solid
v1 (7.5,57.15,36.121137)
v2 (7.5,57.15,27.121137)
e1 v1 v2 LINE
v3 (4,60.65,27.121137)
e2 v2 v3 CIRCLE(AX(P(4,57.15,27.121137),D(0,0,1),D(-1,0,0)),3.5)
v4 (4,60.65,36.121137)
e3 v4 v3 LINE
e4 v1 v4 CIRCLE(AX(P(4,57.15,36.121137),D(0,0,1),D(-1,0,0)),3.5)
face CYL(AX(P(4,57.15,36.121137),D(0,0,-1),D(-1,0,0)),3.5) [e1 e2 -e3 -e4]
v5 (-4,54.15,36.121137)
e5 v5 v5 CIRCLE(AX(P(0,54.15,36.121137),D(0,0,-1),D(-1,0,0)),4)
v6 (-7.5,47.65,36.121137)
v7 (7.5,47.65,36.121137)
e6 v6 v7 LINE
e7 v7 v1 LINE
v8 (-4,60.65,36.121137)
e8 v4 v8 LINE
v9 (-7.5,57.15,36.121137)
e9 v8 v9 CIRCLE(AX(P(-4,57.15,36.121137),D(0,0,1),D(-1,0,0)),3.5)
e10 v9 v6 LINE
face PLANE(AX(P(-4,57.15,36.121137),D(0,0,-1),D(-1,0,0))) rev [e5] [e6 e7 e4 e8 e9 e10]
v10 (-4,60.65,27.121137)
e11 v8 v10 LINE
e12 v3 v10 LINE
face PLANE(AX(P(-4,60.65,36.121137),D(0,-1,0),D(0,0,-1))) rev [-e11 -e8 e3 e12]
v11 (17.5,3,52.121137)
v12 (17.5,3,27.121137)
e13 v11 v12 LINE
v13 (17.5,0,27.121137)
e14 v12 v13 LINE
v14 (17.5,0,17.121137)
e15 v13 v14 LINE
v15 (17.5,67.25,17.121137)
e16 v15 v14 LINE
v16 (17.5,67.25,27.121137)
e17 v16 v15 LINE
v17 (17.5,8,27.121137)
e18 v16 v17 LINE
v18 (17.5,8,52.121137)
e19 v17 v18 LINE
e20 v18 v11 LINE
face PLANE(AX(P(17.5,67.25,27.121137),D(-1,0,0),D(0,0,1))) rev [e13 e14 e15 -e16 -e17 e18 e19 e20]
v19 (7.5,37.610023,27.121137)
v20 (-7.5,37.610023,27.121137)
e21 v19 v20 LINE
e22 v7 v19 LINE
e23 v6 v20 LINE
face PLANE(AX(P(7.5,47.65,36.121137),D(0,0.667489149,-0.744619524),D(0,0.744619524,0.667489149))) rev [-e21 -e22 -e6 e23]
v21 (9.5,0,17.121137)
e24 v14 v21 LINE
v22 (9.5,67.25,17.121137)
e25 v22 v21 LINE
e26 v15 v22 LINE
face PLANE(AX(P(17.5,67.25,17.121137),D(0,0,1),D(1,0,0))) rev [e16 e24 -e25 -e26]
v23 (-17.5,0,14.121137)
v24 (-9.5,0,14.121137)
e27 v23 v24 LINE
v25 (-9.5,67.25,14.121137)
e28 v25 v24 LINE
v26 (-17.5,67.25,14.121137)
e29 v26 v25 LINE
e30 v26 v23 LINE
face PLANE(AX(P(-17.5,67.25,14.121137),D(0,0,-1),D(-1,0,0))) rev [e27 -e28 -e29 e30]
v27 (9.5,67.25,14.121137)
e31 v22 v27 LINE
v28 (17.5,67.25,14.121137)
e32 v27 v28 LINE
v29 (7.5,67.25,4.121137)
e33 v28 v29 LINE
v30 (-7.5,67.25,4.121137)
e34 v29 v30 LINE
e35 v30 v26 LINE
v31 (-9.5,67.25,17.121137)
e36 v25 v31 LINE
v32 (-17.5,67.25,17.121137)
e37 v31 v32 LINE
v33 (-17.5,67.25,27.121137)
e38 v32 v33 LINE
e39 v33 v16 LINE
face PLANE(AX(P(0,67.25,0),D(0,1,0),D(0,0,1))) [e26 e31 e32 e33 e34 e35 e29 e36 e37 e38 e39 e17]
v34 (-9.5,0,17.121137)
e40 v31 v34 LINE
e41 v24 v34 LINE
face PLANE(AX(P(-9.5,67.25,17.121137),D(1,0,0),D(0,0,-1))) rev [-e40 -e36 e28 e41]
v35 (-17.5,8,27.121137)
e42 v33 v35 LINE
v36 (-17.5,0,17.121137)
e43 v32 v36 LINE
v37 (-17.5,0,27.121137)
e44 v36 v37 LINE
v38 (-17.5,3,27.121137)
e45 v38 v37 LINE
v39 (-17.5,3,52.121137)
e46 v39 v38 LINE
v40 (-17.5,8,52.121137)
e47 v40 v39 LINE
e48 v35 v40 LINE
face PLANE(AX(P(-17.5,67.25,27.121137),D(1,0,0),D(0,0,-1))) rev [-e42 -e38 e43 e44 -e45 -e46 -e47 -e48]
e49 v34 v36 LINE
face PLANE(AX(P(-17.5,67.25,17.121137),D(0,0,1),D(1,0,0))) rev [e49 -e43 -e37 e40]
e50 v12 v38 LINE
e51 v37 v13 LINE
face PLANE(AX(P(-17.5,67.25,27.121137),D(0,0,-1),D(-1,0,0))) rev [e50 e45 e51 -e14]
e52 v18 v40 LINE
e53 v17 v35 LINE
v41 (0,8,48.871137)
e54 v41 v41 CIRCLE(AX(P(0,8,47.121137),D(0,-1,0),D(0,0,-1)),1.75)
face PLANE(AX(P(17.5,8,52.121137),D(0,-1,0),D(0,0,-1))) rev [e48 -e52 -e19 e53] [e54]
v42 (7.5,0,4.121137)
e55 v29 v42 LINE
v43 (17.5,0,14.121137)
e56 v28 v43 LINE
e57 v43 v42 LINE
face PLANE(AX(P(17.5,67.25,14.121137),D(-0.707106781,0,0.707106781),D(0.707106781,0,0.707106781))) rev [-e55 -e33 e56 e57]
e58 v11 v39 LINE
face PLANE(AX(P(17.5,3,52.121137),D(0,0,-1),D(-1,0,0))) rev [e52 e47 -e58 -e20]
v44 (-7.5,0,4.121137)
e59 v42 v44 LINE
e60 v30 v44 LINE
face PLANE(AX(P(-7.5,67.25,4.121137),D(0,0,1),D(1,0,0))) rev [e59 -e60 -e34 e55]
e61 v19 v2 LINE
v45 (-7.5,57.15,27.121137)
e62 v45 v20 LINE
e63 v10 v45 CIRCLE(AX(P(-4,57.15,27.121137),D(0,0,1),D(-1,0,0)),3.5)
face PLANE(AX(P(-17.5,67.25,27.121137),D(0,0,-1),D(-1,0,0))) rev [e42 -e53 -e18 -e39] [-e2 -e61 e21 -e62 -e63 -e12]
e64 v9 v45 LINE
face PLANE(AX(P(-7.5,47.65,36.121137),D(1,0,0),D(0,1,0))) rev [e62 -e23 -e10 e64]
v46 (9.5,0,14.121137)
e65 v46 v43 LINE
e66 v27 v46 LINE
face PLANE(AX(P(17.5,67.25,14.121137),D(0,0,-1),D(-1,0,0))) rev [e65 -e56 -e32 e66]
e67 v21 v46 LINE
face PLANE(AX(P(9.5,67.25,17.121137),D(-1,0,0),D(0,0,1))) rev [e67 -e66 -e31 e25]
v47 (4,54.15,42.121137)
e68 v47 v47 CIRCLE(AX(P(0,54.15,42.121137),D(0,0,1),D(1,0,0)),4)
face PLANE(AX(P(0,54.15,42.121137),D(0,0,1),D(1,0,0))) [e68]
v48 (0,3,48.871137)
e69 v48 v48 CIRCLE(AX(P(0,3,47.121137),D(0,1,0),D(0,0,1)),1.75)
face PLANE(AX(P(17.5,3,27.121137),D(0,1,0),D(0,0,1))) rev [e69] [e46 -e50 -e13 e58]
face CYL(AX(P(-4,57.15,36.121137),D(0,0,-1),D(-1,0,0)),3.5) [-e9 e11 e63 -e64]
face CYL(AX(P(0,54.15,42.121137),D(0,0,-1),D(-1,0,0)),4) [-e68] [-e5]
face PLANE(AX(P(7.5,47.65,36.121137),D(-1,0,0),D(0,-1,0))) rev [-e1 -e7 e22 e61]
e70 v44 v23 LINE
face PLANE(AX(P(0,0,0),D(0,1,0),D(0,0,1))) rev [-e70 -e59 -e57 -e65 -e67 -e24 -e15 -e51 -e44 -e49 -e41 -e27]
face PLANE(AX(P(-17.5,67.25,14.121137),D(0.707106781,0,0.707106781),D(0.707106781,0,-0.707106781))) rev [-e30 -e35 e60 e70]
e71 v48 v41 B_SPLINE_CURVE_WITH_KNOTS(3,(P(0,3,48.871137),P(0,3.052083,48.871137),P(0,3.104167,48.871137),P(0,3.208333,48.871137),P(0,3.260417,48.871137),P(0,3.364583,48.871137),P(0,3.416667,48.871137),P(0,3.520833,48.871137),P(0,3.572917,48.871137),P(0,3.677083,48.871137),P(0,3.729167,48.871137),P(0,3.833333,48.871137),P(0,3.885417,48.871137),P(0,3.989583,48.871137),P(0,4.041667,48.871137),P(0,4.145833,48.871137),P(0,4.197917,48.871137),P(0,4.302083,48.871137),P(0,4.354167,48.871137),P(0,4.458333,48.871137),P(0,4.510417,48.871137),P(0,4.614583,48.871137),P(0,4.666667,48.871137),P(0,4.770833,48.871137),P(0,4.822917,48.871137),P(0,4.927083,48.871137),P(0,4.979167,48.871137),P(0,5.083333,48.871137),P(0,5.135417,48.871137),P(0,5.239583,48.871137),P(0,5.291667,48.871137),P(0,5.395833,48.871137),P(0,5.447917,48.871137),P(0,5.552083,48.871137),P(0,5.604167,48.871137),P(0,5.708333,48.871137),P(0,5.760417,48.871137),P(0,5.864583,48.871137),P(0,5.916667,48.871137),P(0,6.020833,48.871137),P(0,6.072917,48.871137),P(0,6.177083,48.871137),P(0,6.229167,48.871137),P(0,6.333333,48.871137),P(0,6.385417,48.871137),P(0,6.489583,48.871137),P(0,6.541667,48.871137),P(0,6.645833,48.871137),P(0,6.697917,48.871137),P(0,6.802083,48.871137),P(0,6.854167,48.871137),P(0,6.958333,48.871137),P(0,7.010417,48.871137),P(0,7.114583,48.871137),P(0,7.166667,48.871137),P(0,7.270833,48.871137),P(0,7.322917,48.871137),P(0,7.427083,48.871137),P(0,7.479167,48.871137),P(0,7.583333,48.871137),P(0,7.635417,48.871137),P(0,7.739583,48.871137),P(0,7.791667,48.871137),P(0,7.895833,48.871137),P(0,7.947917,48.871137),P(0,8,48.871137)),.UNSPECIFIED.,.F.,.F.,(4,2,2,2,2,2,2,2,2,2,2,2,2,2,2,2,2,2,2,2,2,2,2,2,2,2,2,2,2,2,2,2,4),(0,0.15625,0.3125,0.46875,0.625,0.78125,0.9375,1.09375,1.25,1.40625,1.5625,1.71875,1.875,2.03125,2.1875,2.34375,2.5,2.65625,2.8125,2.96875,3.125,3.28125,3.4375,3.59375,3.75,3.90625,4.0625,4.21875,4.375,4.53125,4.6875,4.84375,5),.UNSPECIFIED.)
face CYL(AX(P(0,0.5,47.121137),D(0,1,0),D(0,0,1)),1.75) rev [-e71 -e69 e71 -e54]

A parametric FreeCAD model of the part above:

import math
import FreeCAD as App
import Part
import Sketcher

V = App.Vector
Q = App.Units.Quantity

doc = App.newDocument("Part")
body = doc.addObject("PartDesign::Body", "Body")

sketch1 = body.newObject("Sketcher::SketchObject", "Sketch")
sketch1.AttachmentSupport = (doc.getObject("XZ_Plane"), [""])
sketch1.MapMode = "FlatFace"
sketch1.addGeometry([
    Part.LineSegment(V(-17.5, 27.121137, 0), V(17.5, 27.121137, 0)),
    Part.LineSegment(V(17.5, 27.121137, 0), V(17.5, 17.121137, 0)),
    Part.LineSegment(V(17.5, 17.121137, 0), V(9.5, 17.121137, 0)),
    Part.LineSegment(V(9.5, 17.121137, 0), V(9.5, 14.121137, 0)),
    Part.LineSegment(V(9.5, 14.121137, 0), V(17.5, 14.121137, 0)),
    Part.LineSegment(V(17.5, 14.121137, 0), V(7.5, 4.121137, 0)),
    Part.LineSegment(V(7.5, 4.121137, 0), V(-7.5, 4.121137, 0)),
    Part.LineSegment(V(-7.5, 4.121137, 0), V(-17.5, 14.121137, 0)),
    Part.LineSegment(V(-17.5, 14.121137, 0), V(-9.5, 14.121137, 0)),
    Part.LineSegment(V(-9.5, 14.121137, 0), V(-9.5, 17.121137, 0)),
    Part.LineSegment(V(-9.5, 17.121137, 0), V(-17.5, 17.121137, 0)),
    Part.LineSegment(V(-17.5, 17.121137, 0), V(-17.5, 27.121137, 0)),
], False)
sketch1.addConstraint([
    Sketcher.Constraint("Coincident", 0, 2, 1, 1),
    Sketcher.Constraint("Coincident", 1, 2, 2, 1),
    Sketcher.Constraint("Coincident", 2, 2, 3, 1),
    Sketcher.Constraint("Coincident", 3, 2, 4, 1),
    Sketcher.Constraint("Coincident", 4, 2, 5, 1),
    Sketcher.Constraint("Coincident", 5, 2, 6, 1),
    Sketcher.Constraint("Coincident", 6, 2, 7, 1),
    Sketcher.Constraint("Coincident", 7, 2, 8, 1),
    Sketcher.Constraint("Coincident", 8, 2, 9, 1),
    Sketcher.Constraint("Coincident", 9, 2, 10, 1),
    Sketcher.Constraint("Coincident", 10, 2, 11, 1),
    Sketcher.Constraint("Coincident", 11, 2, 0, 1),
    Sketcher.Constraint("Horizontal", 0),
    Sketcher.Constraint("Vertical", 1),
    Sketcher.Constraint("Horizontal", 2),
    Sketcher.Constraint("Vertical", 3),
    Sketcher.Constraint("Horizontal", 4),
    Sketcher.Constraint("Horizontal", 6),
    Sketcher.Constraint("Horizontal", 8),
    Sketcher.Constraint("Vertical", 9),
    Sketcher.Constraint("Horizontal", 10),
    Sketcher.Constraint("Vertical", 11),
    Sketcher.Constraint("Symmetric", 4, 2, 7, 2, -2),
    Sketcher.Constraint("Symmetric", 2, 2, 9, 2, -2),
    Sketcher.Constraint("Perpendicular", 5, 7),
    Sketcher.Constraint("Vertical", 1, 2, 4, 2),
    Sketcher.Constraint("Vertical", 7, 2, 10, 2),
    Sketcher.Constraint("Equal", 5, 7),
    Sketcher.Constraint("DistanceX", 0, 1, 0, 2, Q("35 mm")),
    Sketcher.Constraint("DistanceX", 2, 2, 2, 1, Q("8 mm")),
    Sketcher.Constraint("DistanceX", 6, 2, 6, 1, Q("15 mm")),
    Sketcher.Constraint("DistanceY", 1, 2, 1, 1, Q("10 mm")),
    Sketcher.Constraint("DistanceY", 3, 2, 3, 1, Q("3 mm")),
    Sketcher.Constraint("DistanceY", -1, 1, 0, 2, Q("27.121137 mm")),
])
pad1 = body.newObject("PartDesign::Pad", "Pad")
pad1.Profile = sketch1
pad1.Length = 67.25
pad1.Reversed = True

sketch2 = body.newObject("Sketcher::SketchObject", "Sketch001")
sketch2.AttachmentSupport = (doc.getObject("XY_Plane"), [""])
sketch2.MapMode = "FlatFace"
sketch2.AttachmentOffset = App.Placement(V(0, 0, 27.121137), App.Rotation())
sketch2.addGeometry(Part.Circle(V(0, 54.15, 0), V(0, 0, 1), 4), False)
sketch2.addConstraint([
    Sketcher.Constraint("PointOnObject", 0, 3, -2),
    Sketcher.Constraint("Diameter", 0, Q("8 mm")),
    Sketcher.Constraint("DistanceY", -1, 1, 0, 3, Q("54.15 mm")),
])
pad2 = body.newObject("PartDesign::Pad", "Pad001")
pad2.Profile = sketch2
pad2.Length = 15
body2 = doc.addObject("PartDesign::Body", "Body001")

sketch3 = body2.newObject("Sketcher::SketchObject", "Sketch002")
sketch3.AttachmentSupport = (doc.getObject("YZ_Plane001"), [""])
sketch3.MapMode = "FlatFace"
sketch3.addGeometry([
    Part.LineSegment(V(47.65, 27.121137, 0), V(47.65, 36.121137, 0)),
    Part.LineSegment(V(47.65, 36.121137, 0), V(37.610023, 27.121137, 0)),
    Part.LineSegment(V(37.610023, 27.121137, 0), V(47.65, 27.121137, 0)),
], False)
sketch3.addConstraint([
    Sketcher.Constraint("Coincident", 0, 2, 1, 1),
    Sketcher.Constraint("Coincident", 1, 2, 2, 1),
    Sketcher.Constraint("Coincident", 2, 2, 0, 1),
    Sketcher.Constraint("Vertical", 0),
    Sketcher.Constraint("Horizontal", 2),
    Sketcher.Constraint("DistanceY", 0, 1, 0, 2, Q("9 mm")),
    Sketcher.Constraint("DistanceX", -1, 1, 0, 2, Q("47.65 mm")),
    Sketcher.Constraint("DistanceX", 2, 1, 2, 2, Q("10.039977 mm")),
    Sketcher.Constraint("DistanceY", -1, 1, 0, 2, Q("36.121137 mm")),
])
pad3 = body2.newObject("PartDesign::Pad", "Pad002")
pad3.Profile = sketch3
pad3.Length = 15
pad3.Midplane = True
doc.recompute()

boolean = body.newObject("PartDesign::Boolean", "Boolean")
boolean.Type = "Fuse"
boolean.addObjects([body2])

sketch4 = body.newObject("Sketcher::SketchObject", "Sketch003")
sketch4.AttachmentSupport = (doc.getObject("XY_Plane"), [""])
sketch4.MapMode = "FlatFace"
sketch4.AttachmentOffset = App.Placement(V(0, 0, 27.121137), App.Rotation())
sketch4.addGeometry([
    Part.LineSegment(V(-7.5, 47.65, 0), V(7.5, 47.65, 0)),
    Part.LineSegment(V(7.5, 47.65, 0), V(7.5, 57.15, 0)),
    Part.ArcOfCircle(Part.Circle(V(4, 57.15, 0), V(0, 0, 1), 3.5), math.radians(0), math.radians(90)),
    Part.LineSegment(V(4, 60.65, 0), V(-4, 60.65, 0)),
    Part.ArcOfCircle(Part.Circle(V(-4, 57.15, 0), V(0, 0, 1), 3.5), math.radians(90), math.radians(180)),
    Part.LineSegment(V(-7.5, 57.15, 0), V(-7.5, 47.65, 0)),
    Part.Circle(V(0, 54.15, 0), V(0, 0, 1), 4),
], False)
sketch4.addConstraint([
    Sketcher.Constraint("Coincident", 0, 2, 1, 1),
    Sketcher.Constraint("Tangent", 1, 2, 2, 1),
    Sketcher.Constraint("Tangent", 2, 2, 3, 1),
    Sketcher.Constraint("Tangent", 3, 2, 4, 1),
    Sketcher.Constraint("Tangent", 4, 2, 5, 1),
    Sketcher.Constraint("Coincident", 5, 2, 0, 1),
    Sketcher.Constraint("Horizontal", 0),
    Sketcher.Constraint("Vertical", 1),
    Sketcher.Constraint("Horizontal", 3),
    Sketcher.Constraint("Vertical", 5),
    Sketcher.Constraint("Equal", 2, 4),
    Sketcher.Constraint("PointOnObject", 6, 3, -2),
    Sketcher.Constraint("Diameter", 6, Q("8 mm")),
    Sketcher.Constraint("Radius", 2, Q("3.5 mm")),
    Sketcher.Constraint("DistanceX", 0, 1, 0, 2, Q("15 mm")),
    Sketcher.Constraint("DistanceY", 1, 1, 1, 2, Q("9.5 mm")),
    Sketcher.Constraint("DistanceX", -1, 1, 2, 3, Q("4 mm")),
    Sketcher.Constraint("DistanceY", 6, 3, 2, 3, Q("3 mm")),
    Sketcher.Constraint("DistanceY", -1, 1, 2, 3, Q("57.15 mm")),
])
pad4 = body.newObject("PartDesign::Pad", "Pad003")
pad4.Profile = sketch4
pad4.Length = 9

sketch5 = body.newObject("Sketcher::SketchObject", "Sketch004")
sketch5.AttachmentSupport = (doc.getObject("YZ_Plane"), [""])
sketch5.MapMode = "FlatFace"
sketch5.addGeometry([
    Part.LineSegment(V(8, 52.121137, 0), V(3, 52.121137, 0)),
    Part.LineSegment(V(3, 52.121137, 0), V(3, 27.121137, 0)),
    Part.LineSegment(V(3, 27.121137, 0), V(8, 27.121137, 0)),
    Part.LineSegment(V(8, 27.121137, 0), V(8, 52.121137, 0)),
], False)
sketch5.addConstraint([
    Sketcher.Constraint("Coincident", 0, 2, 1, 1),
    Sketcher.Constraint("Coincident", 1, 2, 2, 1),
    Sketcher.Constraint("Coincident", 2, 2, 3, 1),
    Sketcher.Constraint("Coincident", 3, 2, 0, 1),
    Sketcher.Constraint("Horizontal", 0),
    Sketcher.Constraint("Vertical", 1),
    Sketcher.Constraint("Horizontal", 2),
    Sketcher.Constraint("Vertical", 3),
    Sketcher.Constraint("DistanceX", 0, 2, 0, 1, Q("5 mm")),
    Sketcher.Constraint("DistanceY", 1, 2, 1, 1, Q("25 mm")),
    Sketcher.Constraint("DistanceX", -1, 1, 0, 2, Q("3 mm")),
    Sketcher.Constraint("DistanceY", -1, 1, 0, 2, Q("52.121137 mm")),
])
pad5 = body.newObject("PartDesign::Pad", "Pad004")
pad5.Profile = sketch5
pad5.Length = 35
pad5.Midplane = True

sketch6 = body.newObject("Sketcher::SketchObject", "Sketch005")
sketch6.AttachmentSupport = (doc.getObject("XZ_Plane"), [""])
sketch6.MapMode = "FlatFace"
sketch6.AttachmentOffset = App.Placement(V(0, 0, -8), App.Rotation())
sketch6.addGeometry(Part.Circle(V(0, 47.121137, 0), V(0, 0, 1), 1.75), False)
sketch6.addConstraint([
    Sketcher.Constraint("PointOnObject", 0, 3, -2),
    Sketcher.Constraint("Diameter", 0, Q("3.5 mm")),
    Sketcher.Constraint("DistanceY", -1, 1, 0, 3, Q("47.121137 mm")),
])
pocket1 = body.newObject("PartDesign::Pocket", "Pocket")
pocket1.Profile = sketch6
pocket1.Length = 15
pocket1.Midplane = True

doc.recompute()
